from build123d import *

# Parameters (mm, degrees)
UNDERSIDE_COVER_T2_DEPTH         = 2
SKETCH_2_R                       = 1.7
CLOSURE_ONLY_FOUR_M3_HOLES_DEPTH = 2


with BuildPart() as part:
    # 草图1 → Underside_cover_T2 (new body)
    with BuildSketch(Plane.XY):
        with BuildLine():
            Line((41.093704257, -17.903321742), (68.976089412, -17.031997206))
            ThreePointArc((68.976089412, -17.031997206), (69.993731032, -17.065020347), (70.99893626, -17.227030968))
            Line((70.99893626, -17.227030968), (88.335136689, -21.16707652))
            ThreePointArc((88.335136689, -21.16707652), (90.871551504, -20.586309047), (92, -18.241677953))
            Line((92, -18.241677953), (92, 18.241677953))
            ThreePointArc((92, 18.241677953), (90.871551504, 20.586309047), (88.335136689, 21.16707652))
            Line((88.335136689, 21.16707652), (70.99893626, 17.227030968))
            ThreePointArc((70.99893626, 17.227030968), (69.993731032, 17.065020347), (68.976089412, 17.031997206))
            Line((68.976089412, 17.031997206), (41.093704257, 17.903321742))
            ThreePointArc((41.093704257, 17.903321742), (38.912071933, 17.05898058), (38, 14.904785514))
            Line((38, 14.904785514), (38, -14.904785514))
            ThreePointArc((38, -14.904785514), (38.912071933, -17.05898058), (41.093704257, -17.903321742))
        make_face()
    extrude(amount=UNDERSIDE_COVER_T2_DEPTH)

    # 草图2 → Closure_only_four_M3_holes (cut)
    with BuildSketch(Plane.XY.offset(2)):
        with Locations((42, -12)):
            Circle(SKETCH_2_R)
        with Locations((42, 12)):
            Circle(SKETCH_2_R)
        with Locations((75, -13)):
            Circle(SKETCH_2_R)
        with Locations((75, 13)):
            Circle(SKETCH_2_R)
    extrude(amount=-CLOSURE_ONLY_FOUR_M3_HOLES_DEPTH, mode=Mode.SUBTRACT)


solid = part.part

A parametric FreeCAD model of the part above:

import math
import FreeCAD as App
import Part
import Sketcher

doc = App.newDocument("Part")
params = doc.addObject("Spreadsheet::Sheet", "Params")
for row, (alias, value) in enumerate([
    ("sketch1_radius", "8 mm"),
    ("sketch1_radius2", "3 mm"),
    ("pad1_length", "2 mm"),
    ("sketch2_diameter", "3.4 mm"),
    ("pocket1_length", "2 mm"),
], start=1):
    params.set(f"A{row}", alias)
    params.set(f"B{row}", "=" + value)
    params.setAlias(f"B{row}", alias)

body = doc.addObject("PartDesign::Body", "Body")

# Sketch on XY plane
sketch1 = body.newObject("Sketcher::SketchObject", "Sketch")
sketch1.AttachmentSupport = (doc.getObject("XY_Plane"), [""])
sketch1.MapMode = "FlatFace"
sketch1.addGeometry(Part.LineSegment(App.Vector(41.093704, -17.903322, 0), App.Vector(68.976089, -17.031997, 0)), False)
sketch1.addGeometry(Part.ArcOfCircle(Part.Circle(App.Vector(69.225967, -25.028094, 0), App.Vector(0, 0, 1), 8), math.radians(77.195734), math.radians(91.789911)), False)
sketch1.addGeometry(Part.LineSegment(App.Vector(70.998936, -17.227031, 0), App.Vector(88.335137, -21.167077, 0)), False)
sketch1.addGeometry(Part.ArcOfCircle(Part.Circle(App.Vector(89, -18.241678, 0), App.Vector(0, 0, 1), 3), math.radians(-102.804266), math.radians(0)), False)
sketch1.addGeometry(Part.LineSegment(App.Vector(92, -18.241678, 0), App.Vector(92, 18.241678, 0)), False)
sketch1.addGeometry(Part.ArcOfCircle(Part.Circle(App.Vector(89, 18.241678, 0), App.Vector(0, 0, 1), 3), math.radians(0), math.radians(102.804266)), False)
sketch1.addGeometry(Part.LineSegment(App.Vector(88.335137, 21.167077, 0), App.Vector(70.998936, 17.227031, 0)), False)
sketch1.addGeometry(Part.ArcOfCircle(Part.Circle(App.Vector(69.225967, 25.028094, 0), App.Vector(0, 0, 1), 8), math.radians(-91.789911), math.radians(-77.195734)), False)
sketch1.addGeometry(Part.LineSegment(App.Vector(68.976089, 17.031997, 0), App.Vector(41.093704, 17.903322, 0)), False)
sketch1.addGeometry(Part.ArcOfCircle(Part.Circle(App.Vector(41, 14.904786, 0), App.Vector(0, 0, 1), 3), math.radians(88.210089), math.radians(180)), False)
sketch1.addGeometry(Part.LineSegment(App.Vector(38, 14.904786, 0), App.Vector(38, -14.904786, 0)), False)
sketch1.addGeometry(Part.ArcOfCircle(Part.Circle(App.Vector(41, -14.904786, 0), App.Vector(0, 0, 1), 3), math.radians(-180), math.radians(-88.210089)), False)
sketch1.addConstraint(Sketcher.Constraint("Tangent", 0, 2, 1, 2))
sketch1.addConstraint(Sketcher.Constraint("Tangent", 1, 1, 2, 1))
sketch1.addConstraint(Sketcher.Constraint("Tangent", 2, 2, 3, 1))
sketch1.addConstraint(Sketcher.Constraint("Tangent", 3, 2, 4, 1))
sketch1.addConstraint(Sketcher.Constraint("Tangent", 4, 2, 5, 1))
sketch1.addConstraint(Sketcher.Constraint("Tangent", 5, 2, 6, 1))
sketch1.addConstraint(Sketcher.Constraint("Tangent", 6, 2, 7, 2))
sketch1.addConstraint(Sketcher.Constraint("Tangent", 7, 1, 8, 1))
sketch1.addConstraint(Sketcher.Constraint("Tangent", 8, 2, 9, 1))
sketch1.addConstraint(Sketcher.Constraint("Tangent", 9, 2, 10, 1))
sketch1.addConstraint(Sketcher.Constraint("Tangent", 10, 2, 11, 1))
sketch1.addConstraint(Sketcher.Constraint("Tangent", 11, 2, 0, 1))
sketch1.addConstraint(Sketcher.Constraint("Vertical", 4))
sketch1.addConstraint(Sketcher.Constraint("Vertical", 10))
sketch1.addConstraint(Sketcher.Constraint("Equal", 3, 5))
sketch1.addConstraint(Sketcher.Constraint("Equal", 1, 7))
sketch1.addConstraint(Sketcher.Constraint("Equal", 5, 9))
sketch1.addConstraint(Sketcher.Constraint("Equal", 9, 11))
sketch1.addConstraint(Sketcher.Constraint("Symmetric", 1, 3, 7, 3, -1))
sketch1.addConstraint(Sketcher.Constraint("Vertical", 2, 2, 5, 2))
sketch1.addConstraint(Sketcher.Constraint("Vertical", 0, 2, 7, 1))
sketch1.addConstraint(Sketcher.Constraint("Radius", 1, 8.0))
sketch1.addConstraint(Sketcher.Constraint("Radius", 3, 3.0))
sketch1.addConstraint(Sketcher.Constraint("DistanceX", -1, 1, 3, 3, 89.0))
sketch1.addConstraint(Sketcher.Constraint("DistanceX", -1, 1, 9, 3, 41.0))
sketch1.addConstraint(Sketcher.Constraint("DistanceY", 10, 2, 10, 1, 29.809571))
sketch1.addConstraint(Sketcher.Constraint("DistanceY", 2, 2, 3, 3, 2.925399))
sketch1.addConstraint(Sketcher.Constraint("DistanceX", 1, 1, 2, 2, 17.3362))
sketch1.addConstraint(Sketcher.Constraint("DistanceY", 4, 1, 4, 2, 36.483356))
sketch1.setExpression("Constraints[21]", "Params.sketch1_radius")
sketch1.setExpression("Constraints[22]", "Params.sketch1_radius2")
pad1 = body.newObject("PartDesign::Pad", "Pad")
pad1.Profile = sketch1
pad1.setExpression("Length", "Params.pad1_length")

# Sketch on XY plane
sketch2 = body.newObject("Sketcher::SketchObject", "Sketch001")
sketch2.AttachmentSupport = (doc.getObject("XY_Plane"), [""])
sketch2.MapMode = "FlatFace"
sketch2.AttachmentOffset = App.Placement(App.Vector(0, 0, 2), App.Rotation())
sketch2.addGeometry(Part.Circle(App.Vector(42, -12, 0), App.Vector(0, 0, 1), 1.7), False)
sketch2.addGeometry(Part.Circle(App.Vector(42, 12, 0), App.Vector(0, 0, 1), 1.7), False)
sketch2.addGeometry(Part.Circle(App.Vector(75, -13, 0), App.Vector(0, 0, 1), 1.7), False)
sketch2.addGeometry(Part.Circle(App.Vector(75, 13, 0), App.Vector(0, 0, 1), 1.7), False)
sketch2.addConstraint(Sketcher.Constraint("Equal", 0, 1))
sketch2.addConstraint(Sketcher.Constraint("Equal", 1, 2))
sketch2.addConstraint(Sketcher.Constraint("Equal", 2, 3))
sketch2.addConstraint(Sketcher.Constraint("Symmetric", 0, 3, 1, 3, -1))
sketch2.addConstraint(Sketcher.Constraint("Symmetric", 2, 3, 3, 3, -1))
sketch2.addConstraint(Sketcher.Constraint("Diameter", 0, 3.4))
sketch2.addConstraint(Sketcher.Constraint("DistanceX", -1, 1, 0, 3, 42.0))
sketch2.addConstraint(Sketcher.Constraint("DistanceY", 0, 3, -1, 1, 12.0))
sketch2.addConstraint(Sketcher.Constraint("DistanceX", -1, 1, 2, 3, 75.0))
sketch2.addConstraint(Sketcher.Constraint("DistanceY", 2, 3, -1, 1, 13.0))
sketch2.setExpression("Constraints[5]", "Params.sketch2_diameter")
pocket1 = body.newObject("PartDesign::Pocket", "Pocket")
pocket1.Profile = sketch2
pocket1.setExpression("Length", "Params.pocket1_length")

doc.recompute()
